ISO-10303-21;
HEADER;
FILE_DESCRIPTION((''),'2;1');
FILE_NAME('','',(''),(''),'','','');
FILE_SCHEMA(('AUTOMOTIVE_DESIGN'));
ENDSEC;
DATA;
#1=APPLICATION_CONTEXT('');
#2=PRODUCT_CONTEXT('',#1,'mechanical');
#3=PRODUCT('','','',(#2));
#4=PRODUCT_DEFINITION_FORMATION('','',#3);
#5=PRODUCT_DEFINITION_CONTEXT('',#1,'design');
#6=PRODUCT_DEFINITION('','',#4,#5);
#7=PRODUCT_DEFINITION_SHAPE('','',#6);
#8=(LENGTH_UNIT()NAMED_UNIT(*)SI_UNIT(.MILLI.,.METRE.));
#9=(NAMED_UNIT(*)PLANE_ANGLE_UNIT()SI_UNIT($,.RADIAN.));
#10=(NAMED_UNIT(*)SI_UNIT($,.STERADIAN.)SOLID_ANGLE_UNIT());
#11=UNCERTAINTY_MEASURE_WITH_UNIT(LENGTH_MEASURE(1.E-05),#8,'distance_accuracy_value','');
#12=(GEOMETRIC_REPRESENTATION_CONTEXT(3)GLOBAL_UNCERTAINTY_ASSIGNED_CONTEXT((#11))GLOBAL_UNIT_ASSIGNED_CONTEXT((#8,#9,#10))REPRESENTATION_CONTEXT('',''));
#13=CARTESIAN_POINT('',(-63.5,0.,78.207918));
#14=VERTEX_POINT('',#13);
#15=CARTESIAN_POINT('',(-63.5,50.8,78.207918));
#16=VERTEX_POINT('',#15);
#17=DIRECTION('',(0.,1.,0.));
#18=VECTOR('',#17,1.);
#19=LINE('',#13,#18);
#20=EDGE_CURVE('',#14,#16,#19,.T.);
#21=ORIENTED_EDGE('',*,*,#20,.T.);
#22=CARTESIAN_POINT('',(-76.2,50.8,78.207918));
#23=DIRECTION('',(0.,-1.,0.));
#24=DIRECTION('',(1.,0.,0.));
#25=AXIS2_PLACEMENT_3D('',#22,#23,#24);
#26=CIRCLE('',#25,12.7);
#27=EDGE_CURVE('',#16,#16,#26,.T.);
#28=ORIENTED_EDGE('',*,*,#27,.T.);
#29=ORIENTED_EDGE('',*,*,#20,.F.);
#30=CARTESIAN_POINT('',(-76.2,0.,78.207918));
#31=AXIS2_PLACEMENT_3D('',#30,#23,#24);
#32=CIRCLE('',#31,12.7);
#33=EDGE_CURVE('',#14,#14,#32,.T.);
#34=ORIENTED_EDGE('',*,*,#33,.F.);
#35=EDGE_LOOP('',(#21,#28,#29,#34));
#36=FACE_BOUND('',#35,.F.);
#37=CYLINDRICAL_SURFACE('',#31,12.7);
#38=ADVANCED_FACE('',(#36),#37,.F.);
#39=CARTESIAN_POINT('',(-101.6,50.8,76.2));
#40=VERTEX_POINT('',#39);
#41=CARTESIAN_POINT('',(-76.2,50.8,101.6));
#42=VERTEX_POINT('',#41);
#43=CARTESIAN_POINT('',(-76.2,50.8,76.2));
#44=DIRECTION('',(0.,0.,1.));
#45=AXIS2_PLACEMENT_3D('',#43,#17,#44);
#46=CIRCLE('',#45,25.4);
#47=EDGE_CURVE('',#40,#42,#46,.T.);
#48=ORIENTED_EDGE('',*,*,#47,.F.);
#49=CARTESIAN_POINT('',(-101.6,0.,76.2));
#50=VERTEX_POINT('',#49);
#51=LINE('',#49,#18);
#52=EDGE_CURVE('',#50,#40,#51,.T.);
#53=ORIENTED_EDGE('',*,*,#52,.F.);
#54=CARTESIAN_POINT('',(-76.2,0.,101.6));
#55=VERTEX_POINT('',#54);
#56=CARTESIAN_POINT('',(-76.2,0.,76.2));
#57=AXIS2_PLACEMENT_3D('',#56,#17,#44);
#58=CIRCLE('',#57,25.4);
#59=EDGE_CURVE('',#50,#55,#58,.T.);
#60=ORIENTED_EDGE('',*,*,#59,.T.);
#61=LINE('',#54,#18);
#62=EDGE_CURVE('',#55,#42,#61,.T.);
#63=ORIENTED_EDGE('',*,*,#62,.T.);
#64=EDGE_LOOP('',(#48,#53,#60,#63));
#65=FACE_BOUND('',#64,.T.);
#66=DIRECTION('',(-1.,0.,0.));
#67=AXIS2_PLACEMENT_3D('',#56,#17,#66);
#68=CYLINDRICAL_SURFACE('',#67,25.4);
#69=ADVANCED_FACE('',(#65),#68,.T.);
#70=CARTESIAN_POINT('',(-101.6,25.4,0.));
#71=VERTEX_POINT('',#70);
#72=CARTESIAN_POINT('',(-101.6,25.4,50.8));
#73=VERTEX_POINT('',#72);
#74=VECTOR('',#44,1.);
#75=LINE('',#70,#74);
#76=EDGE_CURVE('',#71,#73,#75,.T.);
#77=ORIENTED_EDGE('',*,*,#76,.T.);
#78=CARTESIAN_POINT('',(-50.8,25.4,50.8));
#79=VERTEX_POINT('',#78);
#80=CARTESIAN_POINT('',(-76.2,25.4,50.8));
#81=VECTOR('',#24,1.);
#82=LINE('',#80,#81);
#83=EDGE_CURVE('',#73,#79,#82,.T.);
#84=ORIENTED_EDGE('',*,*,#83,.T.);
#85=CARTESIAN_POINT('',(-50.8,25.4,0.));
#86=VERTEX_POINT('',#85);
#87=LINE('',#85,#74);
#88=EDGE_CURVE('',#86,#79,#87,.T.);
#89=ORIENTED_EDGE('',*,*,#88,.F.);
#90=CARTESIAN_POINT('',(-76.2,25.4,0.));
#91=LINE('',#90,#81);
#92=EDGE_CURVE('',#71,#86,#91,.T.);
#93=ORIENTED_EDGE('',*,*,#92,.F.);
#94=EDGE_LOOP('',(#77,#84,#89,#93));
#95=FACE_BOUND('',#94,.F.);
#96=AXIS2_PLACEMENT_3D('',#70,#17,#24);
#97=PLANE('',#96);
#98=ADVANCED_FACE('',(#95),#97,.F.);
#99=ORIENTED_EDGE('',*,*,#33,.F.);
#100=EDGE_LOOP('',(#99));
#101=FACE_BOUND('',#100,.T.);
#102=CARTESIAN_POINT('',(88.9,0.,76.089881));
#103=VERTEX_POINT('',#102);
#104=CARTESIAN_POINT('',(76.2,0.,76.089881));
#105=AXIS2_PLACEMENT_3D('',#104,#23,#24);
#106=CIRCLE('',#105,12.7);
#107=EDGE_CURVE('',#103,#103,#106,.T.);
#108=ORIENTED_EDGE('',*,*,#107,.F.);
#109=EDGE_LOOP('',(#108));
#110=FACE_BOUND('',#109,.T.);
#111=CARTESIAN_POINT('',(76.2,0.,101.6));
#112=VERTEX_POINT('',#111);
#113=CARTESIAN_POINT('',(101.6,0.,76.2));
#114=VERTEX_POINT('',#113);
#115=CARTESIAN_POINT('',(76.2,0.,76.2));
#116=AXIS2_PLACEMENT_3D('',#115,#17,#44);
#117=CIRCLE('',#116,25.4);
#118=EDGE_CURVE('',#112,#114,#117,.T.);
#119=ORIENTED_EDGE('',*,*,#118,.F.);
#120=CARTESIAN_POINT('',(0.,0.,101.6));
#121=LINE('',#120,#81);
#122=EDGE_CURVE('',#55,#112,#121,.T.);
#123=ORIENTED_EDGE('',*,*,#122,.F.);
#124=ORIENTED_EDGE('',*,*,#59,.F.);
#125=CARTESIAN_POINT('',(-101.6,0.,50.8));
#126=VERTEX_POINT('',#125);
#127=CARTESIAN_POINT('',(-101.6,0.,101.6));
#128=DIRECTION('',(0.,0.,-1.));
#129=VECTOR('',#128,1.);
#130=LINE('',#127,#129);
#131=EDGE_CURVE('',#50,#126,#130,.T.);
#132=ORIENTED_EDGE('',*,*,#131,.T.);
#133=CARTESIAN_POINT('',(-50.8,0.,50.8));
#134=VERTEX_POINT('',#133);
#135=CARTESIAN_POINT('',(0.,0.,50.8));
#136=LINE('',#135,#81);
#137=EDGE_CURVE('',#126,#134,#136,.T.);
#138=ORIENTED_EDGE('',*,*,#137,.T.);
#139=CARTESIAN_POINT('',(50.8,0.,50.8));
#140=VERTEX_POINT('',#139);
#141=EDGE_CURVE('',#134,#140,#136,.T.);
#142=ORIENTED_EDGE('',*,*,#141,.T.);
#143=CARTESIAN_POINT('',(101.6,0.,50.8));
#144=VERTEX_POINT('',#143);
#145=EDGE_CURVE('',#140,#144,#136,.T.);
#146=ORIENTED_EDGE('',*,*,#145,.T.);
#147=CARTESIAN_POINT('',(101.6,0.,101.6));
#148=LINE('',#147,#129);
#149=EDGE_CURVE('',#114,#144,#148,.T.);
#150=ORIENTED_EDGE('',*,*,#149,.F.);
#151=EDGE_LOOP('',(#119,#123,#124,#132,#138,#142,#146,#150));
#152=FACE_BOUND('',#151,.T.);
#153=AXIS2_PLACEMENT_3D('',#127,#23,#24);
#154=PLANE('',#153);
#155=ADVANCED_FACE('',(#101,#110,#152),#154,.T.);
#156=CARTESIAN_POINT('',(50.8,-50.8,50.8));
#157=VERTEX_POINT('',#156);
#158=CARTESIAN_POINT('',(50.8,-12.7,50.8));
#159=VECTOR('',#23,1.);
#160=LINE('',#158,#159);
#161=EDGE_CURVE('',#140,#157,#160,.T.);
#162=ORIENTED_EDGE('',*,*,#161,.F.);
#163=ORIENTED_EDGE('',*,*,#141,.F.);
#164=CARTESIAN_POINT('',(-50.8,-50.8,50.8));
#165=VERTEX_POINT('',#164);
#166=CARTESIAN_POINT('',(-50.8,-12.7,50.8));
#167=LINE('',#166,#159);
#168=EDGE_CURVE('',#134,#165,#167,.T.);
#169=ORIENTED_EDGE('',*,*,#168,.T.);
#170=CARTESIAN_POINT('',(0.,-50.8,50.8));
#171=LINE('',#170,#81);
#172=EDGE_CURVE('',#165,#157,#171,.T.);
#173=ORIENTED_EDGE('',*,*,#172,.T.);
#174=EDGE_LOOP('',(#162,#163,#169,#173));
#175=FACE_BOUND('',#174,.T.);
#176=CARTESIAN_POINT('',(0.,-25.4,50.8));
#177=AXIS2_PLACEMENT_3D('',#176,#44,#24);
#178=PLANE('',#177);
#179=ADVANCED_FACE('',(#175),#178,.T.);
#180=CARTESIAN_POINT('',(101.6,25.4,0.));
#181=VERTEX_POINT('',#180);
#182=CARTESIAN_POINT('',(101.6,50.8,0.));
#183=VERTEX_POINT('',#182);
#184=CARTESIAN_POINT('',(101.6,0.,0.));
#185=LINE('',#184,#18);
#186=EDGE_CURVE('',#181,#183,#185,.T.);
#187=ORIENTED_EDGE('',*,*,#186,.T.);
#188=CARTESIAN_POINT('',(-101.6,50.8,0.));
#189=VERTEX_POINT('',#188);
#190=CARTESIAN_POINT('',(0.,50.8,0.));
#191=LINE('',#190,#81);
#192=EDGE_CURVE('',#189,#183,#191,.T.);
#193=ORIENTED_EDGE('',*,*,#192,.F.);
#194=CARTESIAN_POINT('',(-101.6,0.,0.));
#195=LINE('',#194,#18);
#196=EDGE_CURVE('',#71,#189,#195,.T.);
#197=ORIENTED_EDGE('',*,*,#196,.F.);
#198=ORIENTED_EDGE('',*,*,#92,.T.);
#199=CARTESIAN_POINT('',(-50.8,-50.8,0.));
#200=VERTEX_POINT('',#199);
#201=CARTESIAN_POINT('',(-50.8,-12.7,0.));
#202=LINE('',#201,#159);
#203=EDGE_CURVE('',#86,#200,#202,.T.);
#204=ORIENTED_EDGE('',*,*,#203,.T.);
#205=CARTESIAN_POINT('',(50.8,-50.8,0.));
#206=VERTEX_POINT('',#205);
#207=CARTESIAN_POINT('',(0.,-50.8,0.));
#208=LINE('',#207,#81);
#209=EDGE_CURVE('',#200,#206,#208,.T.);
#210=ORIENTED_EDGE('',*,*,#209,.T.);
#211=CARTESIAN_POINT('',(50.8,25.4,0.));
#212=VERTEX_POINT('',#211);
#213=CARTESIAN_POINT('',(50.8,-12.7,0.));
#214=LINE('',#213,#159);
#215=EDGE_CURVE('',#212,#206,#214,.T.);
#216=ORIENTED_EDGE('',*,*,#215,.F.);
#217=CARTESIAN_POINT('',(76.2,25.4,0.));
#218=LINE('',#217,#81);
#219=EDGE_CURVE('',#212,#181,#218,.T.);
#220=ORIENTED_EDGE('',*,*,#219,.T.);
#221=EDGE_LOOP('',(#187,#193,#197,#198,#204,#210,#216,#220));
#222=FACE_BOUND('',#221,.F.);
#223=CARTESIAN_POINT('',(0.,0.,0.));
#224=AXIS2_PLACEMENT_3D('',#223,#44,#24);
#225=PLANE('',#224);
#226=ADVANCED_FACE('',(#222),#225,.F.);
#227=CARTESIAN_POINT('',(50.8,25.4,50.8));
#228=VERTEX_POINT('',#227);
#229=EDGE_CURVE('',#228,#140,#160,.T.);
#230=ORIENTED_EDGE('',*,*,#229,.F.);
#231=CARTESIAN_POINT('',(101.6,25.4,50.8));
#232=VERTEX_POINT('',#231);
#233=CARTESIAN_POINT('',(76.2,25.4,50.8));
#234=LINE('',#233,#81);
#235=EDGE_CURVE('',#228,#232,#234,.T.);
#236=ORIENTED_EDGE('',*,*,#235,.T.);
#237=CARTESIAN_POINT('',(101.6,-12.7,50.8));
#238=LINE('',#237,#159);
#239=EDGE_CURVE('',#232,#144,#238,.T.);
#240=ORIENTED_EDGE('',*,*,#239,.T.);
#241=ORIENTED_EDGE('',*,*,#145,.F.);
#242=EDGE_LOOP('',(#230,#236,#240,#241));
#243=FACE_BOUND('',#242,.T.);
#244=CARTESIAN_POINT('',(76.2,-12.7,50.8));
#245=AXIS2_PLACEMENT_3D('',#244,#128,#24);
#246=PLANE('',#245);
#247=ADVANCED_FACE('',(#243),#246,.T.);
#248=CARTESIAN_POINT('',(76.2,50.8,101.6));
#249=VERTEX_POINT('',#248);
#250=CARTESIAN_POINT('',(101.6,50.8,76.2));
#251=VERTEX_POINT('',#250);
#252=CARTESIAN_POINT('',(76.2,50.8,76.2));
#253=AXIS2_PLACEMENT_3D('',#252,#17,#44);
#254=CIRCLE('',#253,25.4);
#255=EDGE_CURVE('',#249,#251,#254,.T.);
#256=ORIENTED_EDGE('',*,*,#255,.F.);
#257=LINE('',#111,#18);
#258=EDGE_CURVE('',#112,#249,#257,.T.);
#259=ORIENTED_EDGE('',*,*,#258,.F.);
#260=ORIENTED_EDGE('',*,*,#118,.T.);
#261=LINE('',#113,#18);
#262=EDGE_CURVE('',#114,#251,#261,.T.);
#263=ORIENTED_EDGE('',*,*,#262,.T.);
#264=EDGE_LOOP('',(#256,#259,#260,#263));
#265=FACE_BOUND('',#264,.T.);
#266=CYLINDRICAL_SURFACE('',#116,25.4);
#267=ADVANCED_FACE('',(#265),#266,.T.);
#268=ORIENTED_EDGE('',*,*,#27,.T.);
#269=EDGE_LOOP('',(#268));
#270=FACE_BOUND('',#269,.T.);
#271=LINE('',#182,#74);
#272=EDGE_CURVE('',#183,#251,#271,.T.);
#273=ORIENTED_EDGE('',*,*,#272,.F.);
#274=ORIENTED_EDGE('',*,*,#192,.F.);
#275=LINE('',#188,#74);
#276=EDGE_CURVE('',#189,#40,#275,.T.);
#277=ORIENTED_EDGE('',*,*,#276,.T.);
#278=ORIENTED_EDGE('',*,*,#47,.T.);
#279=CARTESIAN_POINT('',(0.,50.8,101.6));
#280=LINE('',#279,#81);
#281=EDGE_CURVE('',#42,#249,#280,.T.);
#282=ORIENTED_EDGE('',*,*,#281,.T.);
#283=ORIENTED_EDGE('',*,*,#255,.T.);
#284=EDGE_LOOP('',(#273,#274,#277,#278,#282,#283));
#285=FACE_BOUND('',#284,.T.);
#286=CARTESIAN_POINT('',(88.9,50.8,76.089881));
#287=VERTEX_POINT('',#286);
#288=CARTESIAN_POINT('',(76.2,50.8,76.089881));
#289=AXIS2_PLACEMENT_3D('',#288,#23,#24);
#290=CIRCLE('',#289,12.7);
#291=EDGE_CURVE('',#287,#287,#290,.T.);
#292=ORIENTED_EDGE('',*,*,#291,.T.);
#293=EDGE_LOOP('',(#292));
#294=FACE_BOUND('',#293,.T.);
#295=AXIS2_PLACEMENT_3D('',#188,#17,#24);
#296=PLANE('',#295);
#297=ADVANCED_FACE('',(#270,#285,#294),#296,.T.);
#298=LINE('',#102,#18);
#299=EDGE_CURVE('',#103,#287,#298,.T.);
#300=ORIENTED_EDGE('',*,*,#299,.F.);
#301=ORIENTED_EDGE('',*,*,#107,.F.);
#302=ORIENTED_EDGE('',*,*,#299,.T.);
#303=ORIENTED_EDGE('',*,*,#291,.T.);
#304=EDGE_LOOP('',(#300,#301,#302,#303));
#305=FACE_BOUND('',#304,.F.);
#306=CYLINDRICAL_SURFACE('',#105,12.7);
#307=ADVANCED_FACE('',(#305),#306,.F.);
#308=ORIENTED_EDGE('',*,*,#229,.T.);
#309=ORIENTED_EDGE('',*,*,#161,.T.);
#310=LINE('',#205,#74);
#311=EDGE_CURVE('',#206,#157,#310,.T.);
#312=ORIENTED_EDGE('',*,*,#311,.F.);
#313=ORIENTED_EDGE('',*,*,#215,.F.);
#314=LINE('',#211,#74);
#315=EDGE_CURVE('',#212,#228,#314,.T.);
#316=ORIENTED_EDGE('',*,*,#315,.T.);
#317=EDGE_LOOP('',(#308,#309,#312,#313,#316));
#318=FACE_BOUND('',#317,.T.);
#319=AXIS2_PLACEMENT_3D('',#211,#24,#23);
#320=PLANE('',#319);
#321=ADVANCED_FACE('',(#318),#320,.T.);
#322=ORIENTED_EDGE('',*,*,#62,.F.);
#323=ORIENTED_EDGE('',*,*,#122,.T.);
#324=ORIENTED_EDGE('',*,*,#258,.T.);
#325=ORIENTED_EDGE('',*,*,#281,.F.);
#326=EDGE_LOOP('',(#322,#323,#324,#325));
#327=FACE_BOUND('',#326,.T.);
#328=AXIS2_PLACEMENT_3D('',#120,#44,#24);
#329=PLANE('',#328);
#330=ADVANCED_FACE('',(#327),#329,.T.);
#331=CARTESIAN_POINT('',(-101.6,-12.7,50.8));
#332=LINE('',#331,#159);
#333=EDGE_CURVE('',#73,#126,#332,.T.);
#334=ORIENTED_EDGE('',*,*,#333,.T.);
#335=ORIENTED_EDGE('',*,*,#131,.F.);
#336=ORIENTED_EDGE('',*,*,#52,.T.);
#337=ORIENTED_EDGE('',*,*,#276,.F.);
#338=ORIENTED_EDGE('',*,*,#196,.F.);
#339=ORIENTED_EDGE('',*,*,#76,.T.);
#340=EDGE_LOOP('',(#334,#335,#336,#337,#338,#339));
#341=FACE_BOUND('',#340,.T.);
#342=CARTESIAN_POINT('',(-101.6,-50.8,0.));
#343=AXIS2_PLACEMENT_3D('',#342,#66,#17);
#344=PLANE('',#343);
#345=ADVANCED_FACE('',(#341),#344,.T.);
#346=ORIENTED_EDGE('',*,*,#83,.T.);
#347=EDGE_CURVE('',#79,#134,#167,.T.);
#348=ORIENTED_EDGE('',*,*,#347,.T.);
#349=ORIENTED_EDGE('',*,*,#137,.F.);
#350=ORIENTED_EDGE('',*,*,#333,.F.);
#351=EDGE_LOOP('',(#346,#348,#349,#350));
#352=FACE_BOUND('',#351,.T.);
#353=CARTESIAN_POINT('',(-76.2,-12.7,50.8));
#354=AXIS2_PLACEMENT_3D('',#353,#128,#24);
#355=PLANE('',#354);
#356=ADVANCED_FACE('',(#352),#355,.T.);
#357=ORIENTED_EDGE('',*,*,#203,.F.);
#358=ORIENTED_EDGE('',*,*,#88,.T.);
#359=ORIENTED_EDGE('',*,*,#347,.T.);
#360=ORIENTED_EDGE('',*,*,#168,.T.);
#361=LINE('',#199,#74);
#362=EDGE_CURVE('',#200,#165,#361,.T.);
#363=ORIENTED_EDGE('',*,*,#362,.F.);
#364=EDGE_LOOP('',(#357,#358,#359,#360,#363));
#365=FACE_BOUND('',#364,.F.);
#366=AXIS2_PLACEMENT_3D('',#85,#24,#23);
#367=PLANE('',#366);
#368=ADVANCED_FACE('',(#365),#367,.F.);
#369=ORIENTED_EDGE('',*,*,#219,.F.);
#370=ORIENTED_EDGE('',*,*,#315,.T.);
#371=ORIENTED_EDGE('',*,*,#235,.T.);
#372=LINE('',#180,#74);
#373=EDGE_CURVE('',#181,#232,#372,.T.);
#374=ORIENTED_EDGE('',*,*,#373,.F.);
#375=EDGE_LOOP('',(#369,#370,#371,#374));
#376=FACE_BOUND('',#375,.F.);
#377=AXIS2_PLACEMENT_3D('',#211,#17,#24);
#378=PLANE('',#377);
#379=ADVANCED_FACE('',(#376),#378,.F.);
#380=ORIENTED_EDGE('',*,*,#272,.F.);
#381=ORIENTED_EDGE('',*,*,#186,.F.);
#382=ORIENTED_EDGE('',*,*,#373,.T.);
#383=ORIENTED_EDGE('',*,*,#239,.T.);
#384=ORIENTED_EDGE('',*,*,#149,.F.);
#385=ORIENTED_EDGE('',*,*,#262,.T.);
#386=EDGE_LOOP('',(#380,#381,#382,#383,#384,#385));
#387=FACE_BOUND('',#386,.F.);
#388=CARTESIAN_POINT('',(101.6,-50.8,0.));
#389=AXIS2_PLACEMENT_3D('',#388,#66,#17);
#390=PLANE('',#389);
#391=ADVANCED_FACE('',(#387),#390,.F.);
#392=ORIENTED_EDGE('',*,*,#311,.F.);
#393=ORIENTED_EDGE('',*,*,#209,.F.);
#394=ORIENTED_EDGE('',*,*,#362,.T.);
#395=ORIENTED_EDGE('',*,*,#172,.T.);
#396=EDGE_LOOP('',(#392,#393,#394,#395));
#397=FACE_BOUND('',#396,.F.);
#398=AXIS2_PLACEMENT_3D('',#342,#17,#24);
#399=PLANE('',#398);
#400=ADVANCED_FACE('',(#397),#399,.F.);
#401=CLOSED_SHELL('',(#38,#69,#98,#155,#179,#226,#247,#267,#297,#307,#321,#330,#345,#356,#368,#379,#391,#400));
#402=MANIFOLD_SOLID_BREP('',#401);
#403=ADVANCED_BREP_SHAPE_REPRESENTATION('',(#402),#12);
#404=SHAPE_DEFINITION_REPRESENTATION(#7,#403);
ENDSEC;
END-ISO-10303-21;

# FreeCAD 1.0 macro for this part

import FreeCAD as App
import Part
import Sketcher
from FreeCAD import Vector
Q = App.Units.Quantity


def edges_at(feature, points):
    """Names of the edges that pass closest to the given points."""
    edges = feature.Shape.Edges
    near = lambda p: min(range(len(edges)), key=lambda i: edges[i].distToShape(Part.Vertex(*p))[0])
    return sorted({f"Edge{near(p) + 1}" for p in points})


def add_polygon(sketch, points):
    """Adds a closed chain of lines whose ends are joined by coincident constraints."""
    first, n = sketch.GeometryCount, len(points)
    for a, b in zip(points, points[1:] + points[:1]):
        sketch.addGeometry(Part.LineSegment(App.Vector(*a, 0), App.Vector(*b, 0)), False)
    for i in range(n):
        sketch.addConstraint(Sketcher.Constraint("Coincident", first + i, 2, first + (i + 1) % n, 1))

doc = App.newDocument("Part")
params = doc.addObject("Spreadsheet::Sheet", "Params")
for row, (alias, value) in enumerate([
    ("sketch1_width", "8 in"),
    ("sketch1_height", "4 in"),
    ("pad1_length", "4 in"),
    ("sketch2_width", "8 in"),
    ("sketch2_height", "2 in"),
    ("pocket1_length", "2 in"),
    ("sketch3_width", "2 in"),
    ("sketch3_height", "3 in"),
    ("pocket2_length", "2 in"),
    ("sketch4_width", "2 in"),
    ("sketch4_height", "3 in"),
    ("pocket3_length", "2 in"),
    ("sketch5_diameter", "1 in"),
    ("fillet_radius", "1 in"),
    ("sketch6_diameter", "1 in"),
    ("fillet2_radius", "1 in"),
], start=1):
    params.set(f"A{row}", alias)
    params.set(f"B{row}", "=" + value)
    params.setAlias(f"B{row}", alias)

body = doc.addObject("PartDesign::Body", "Body")

sketch1 = body.newObject("Sketcher::SketchObject", "Sketch")
sketch1.AttachmentSupport = (doc.getObject("XY_Plane"), [""])
sketch1.MapMode = "FlatFace"
add_polygon(sketch1, [(-102, 51), (-102, -51), (102, -51), (102, 51)])
sketch1.addConstraint([
    Sketcher.Constraint("Vertical", 0),
    Sketcher.Constraint("Horizontal", 1),
    Sketcher.Constraint("Vertical", 2),
    Sketcher.Constraint("Horizontal", 3),
    Sketcher.Constraint("Symmetric", 0, 2, 2, 2, -1, 1),
    Sketcher.Constraint("DistanceX", 1, 1, 1, 2, Q("8 in")),
    Sketcher.Constraint("DistanceY", 0, 2, 0, 1, Q("4 in")),
])
sketch1.setExpression("Constraints[9]", "Params.sketch1_width")
sketch1.setExpression("Constraints[10]", "Params.sketch1_height")
pad1 = body.newObject("PartDesign::Pad", "Pad")
pad1.Profile = sketch1
pad1.setExpression("Length", "Params.pad1_length")

sketch2 = body.newObject("Sketcher::SketchObject", "Sketch001")
sketch2.AttachmentSupport = (doc.getObject("XY_Plane"), [""])
sketch2.MapMode = "FlatFace"
sketch2.AttachmentOffset = App.Placement(Vector(0, 0, 4 * 25.4), App.Rotation())
add_polygon(sketch2, [(-102, 0), (-102, -51), (102, -51), (102, 0)])
sketch2.addConstraint([
    Sketcher.Constraint("Vertical", 0),
    Sketcher.Constraint("Horizontal", 1),
    Sketcher.Constraint("Vertical", 2),
    Sketcher.Constraint("Horizontal", 3),
    Sketcher.Constraint("Symmetric", 2, 2, 3, 2, -1, 1),
    Sketcher.Constraint("DistanceX", 1, 1, 1, 2, Q("8 in")),
    Sketcher.Constraint("DistanceY", 0, 2, 0, 1, Q("2 in")),
])
sketch2.setExpression("Constraints[9]", "Params.sketch2_width")
sketch2.setExpression("Constraints[10]", "Params.sketch2_height")
pocket1 = body.newObject("PartDesign::Pocket", "Pocket")
pocket1.Profile = sketch2
pocket1.setExpression("Length", "Params.pocket1_length")

sketch3 = body.newObject("Sketcher::SketchObject", "Sketch002")
sketch3.AttachmentSupport = (doc.getObject("XY_Plane"), [""])
sketch3.MapMode = "FlatFace"
add_polygon(sketch3, [(51, -51), (51, 25), (102, 25), (102, -51)])
sketch3.addConstraint([
    Sketcher.Constraint("Vertical", 0),
    Sketcher.Constraint("Horizontal", 1),
    Sketcher.Constraint("Vertical", 2),
    Sketcher.Constraint("Horizontal", 3),
    Sketcher.Constraint("DistanceX", 1, 1, 1, 2, Q("2 in")),
    Sketcher.Constraint("DistanceY", 0, 1, 0, 2, Q("3 in")),
    Sketcher.Constraint("DistanceX", -1, 1, 0, 2, Q("2 in")),
    Sketcher.Constraint("DistanceY", -1, 1, 0, 2, Q("1 in")),
])
sketch3.setExpression("Constraints[8]", "Params.sketch3_width")
sketch3.setExpression("Constraints[9]", "Params.sketch3_height")
pocket2 = body.newObject("PartDesign::Pocket", "Pocket001")
pocket2.Profile = sketch3
pocket2.setExpression("Length", "Params.pocket2_length")
pocket2.Reversed = True

sketch4 = body.newObject("Sketcher::SketchObject", "Sketch003")
sketch4.AttachmentSupport = (doc.getObject("XY_Plane"), [""])
sketch4.MapMode = "FlatFace"
add_polygon(sketch4, [(-102, -51), (-102, 25), (-51, 25), (-51, -51)])
sketch4.addConstraint([
    Sketcher.Constraint("Vertical", 0),
    Sketcher.Constraint("Horizontal", 1),
    Sketcher.Constraint("Vertical", 2),
    Sketcher.Constraint("Horizontal", 3),
    Sketcher.Constraint("DistanceX", 1, 1, 1, 2, Q("2 in")),
    Sketcher.Constraint("DistanceY", 0, 1, 0, 2, Q("3 in")),
    Sketcher.Constraint("DistanceX", 0, 2, -1, 1, Q("4 in")),
    Sketcher.Constraint("DistanceY", -1, 1, 0, 2, Q("1 in")),
])
sketch4.setExpression("Constraints[8]", "Params.sketch4_width")
sketch4.setExpression("Constraints[9]", "Params.sketch4_height")
pocket3 = body.newObject("PartDesign::Pocket", "Pocket002")
pocket3.Profile = sketch4
pocket3.setExpression("Length", "Params.pocket3_length")
pocket3.Reversed = True

sketch5 = body.newObject("Sketcher::SketchObject", "Sketch004")
sketch5.AttachmentSupport = (doc.getObject("XZ_Plane"), [""])
sketch5.MapMode = "FlatFace"
sketch5.addGeometry(Part.Circle(Vector(-76, 78, 0), Vector(0, 0, 1), 13), False)
sketch5.addConstraint([
    Sketcher.Constraint("Diameter", 0, Q("1 in")),
    Sketcher.Constraint("DistanceX", 0, 3, -1, 1, Q("3 in")),
    Sketcher.Constraint("DistanceY", -1, 1, 0, 3, 78.207918),
])
sketch5.setExpression("Constraints[0]", "Params.sketch5_diameter")
pocket4 = body.newObject("PartDesign::Pocket", "Pocket003")
pocket4.Profile = sketch5
pocket4.Type = "ThroughAll"
doc.recompute()

fillet = body.newObject("PartDesign::Fillet", "Fillet")
fillet.Base = (pocket4, edges_at(pocket4, [(-101.6, 25.4, 101.6)]))
fillet.setExpression("Radius", "Params.fillet_radius")

sketch6 = body.newObject("Sketcher::SketchObject", "Sketch005")
sketch6.AttachmentSupport = (doc.getObject("XZ_Plane"), [""])
sketch6.MapMode = "FlatFace"
sketch6.addGeometry(Part.Circle(Vector(76, 76, 0), Vector(0, 0, 1), 13), False)
sketch6.addConstraint([
    Sketcher.Constraint("Diameter", 0, Q("1 in")),
    Sketcher.Constraint("DistanceX", -1, 1, 0, 3, Q("3 in")),
    Sketcher.Constraint("DistanceY", -1, 1, 0, 3, 76.089881),
])
sketch6.setExpression("Constraints[0]", "Params.sketch6_diameter")
pocket5 = body.newObject("PartDesign::Pocket", "Pocket004")
pocket5.Profile = sketch6
pocket5.Type = "ThroughAll"
doc.recompute()

fillet2 = body.newObject("PartDesign::Fillet", "Fillet001")
fillet2.Base = (pocket5, edges_at(pocket5, [(101.6, 25.4, 101.6)]))
fillet2.setExpression("Radius", "Params.fillet2_radius")

doc.recompute()
